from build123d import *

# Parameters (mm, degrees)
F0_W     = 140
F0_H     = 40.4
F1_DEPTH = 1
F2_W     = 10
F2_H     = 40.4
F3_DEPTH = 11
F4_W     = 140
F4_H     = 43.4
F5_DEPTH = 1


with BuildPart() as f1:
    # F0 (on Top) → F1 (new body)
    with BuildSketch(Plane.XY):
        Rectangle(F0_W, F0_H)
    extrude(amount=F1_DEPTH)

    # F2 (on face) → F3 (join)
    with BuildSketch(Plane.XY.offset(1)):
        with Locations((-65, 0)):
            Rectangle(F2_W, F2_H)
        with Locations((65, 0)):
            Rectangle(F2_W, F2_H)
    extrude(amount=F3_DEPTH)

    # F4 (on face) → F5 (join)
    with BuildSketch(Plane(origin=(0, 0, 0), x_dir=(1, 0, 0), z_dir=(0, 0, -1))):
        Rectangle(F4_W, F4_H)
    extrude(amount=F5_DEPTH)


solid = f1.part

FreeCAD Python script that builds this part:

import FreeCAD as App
import Part
import Sketcher
Q = App.Units.Quantity


def add_polygon(sketch, points):
    """Adds a closed chain of lines whose ends are joined by coincident constraints."""
    first, n = sketch.GeometryCount, len(points)
    for a, b in zip(points, points[1:] + points[:1]):
        sketch.addGeometry(Part.LineSegment(App.Vector(*a, 0), App.Vector(*b, 0)), False)
    for i in range(n):
        sketch.addConstraint(Sketcher.Constraint("Coincident", first + i, 2, first + (i + 1) % n, 1))

doc = App.newDocument("Part")
params = doc.addObject("Spreadsheet::Sheet", "Params")
for row, (alias, value) in enumerate([
    ("sketch1_width", "140 mm"),
    ("sketch1_height", "40.4 mm"),
    ("pad1_length", "1 mm"),
    ("sketch2_width", "10 mm"),
    ("sketch2_height", "40.4 mm"),
    ("pad2_length", "11 mm"),
    ("sketch3_width", "140 mm"),
    ("sketch3_height", "43.4 mm"),
    ("pad3_length", "1 mm"),
], start=1):
    params.set(f"A{row}", alias)
    params.set(f"B{row}", "=" + value)
    params.setAlias(f"B{row}", alias)

body = doc.addObject("PartDesign::Body", "Body")

sketch1 = body.newObject("Sketcher::SketchObject", "Sketch")
sketch1.AttachmentSupport = (doc.getObject("XY_Plane"), [""])
sketch1.MapMode = "FlatFace"
add_polygon(sketch1, [(-70, 20), (-70, -20), (70, -20), (70, 20)])
sketch1.addConstraint(Sketcher.Constraint("Vertical", 0))
sketch1.addConstraint(Sketcher.Constraint("Horizontal", 1))
sketch1.addConstraint(Sketcher.Constraint("Vertical", 2))
sketch1.addConstraint(Sketcher.Constraint("Horizontal", 3))
sketch1.addConstraint(Sketcher.Constraint("Symmetric", 0, 2, 2, 2, -1, 1))
sketch1.addConstraint(Sketcher.Constraint("DistanceX", 1, 1, 1, 2, Q("140 mm")))
sketch1.addConstraint(Sketcher.Constraint("DistanceY", 0, 2, 0, 1, Q("40.4 mm")))
sketch1.setExpression("Constraints[9]", "Params.sketch1_width")
sketch1.setExpression("Constraints[10]", "Params.sketch1_height")
pad1 = body.newObject("PartDesign::Pad", "Pad")
pad1.Profile = sketch1
pad1.setExpression("Length", "Params.pad1_length")

sketch2 = body.newObject("Sketcher::SketchObject", "Sketch001")
sketch2.AttachmentSupport = (doc.getObject("XY_Plane"), [""])
sketch2.MapMode = "FlatFace"
sketch2.AttachmentOffset = App.Placement(App.Vector(0, 0, 1), App.Rotation())
add_polygon(sketch2, [(-70, 20), (-70, -20), (-60, -20), (-60, 20)])
add_polygon(sketch2, [(60, 20), (60, -20), (70, -20), (70, 20)])
sketch2.addConstraint(Sketcher.Constraint("Vertical", 0))
sketch2.addConstraint(Sketcher.Constraint("Horizontal", 1))
sketch2.addConstraint(Sketcher.Constraint("Vertical", 2))
sketch2.addConstraint(Sketcher.Constraint("Horizontal", 3))
sketch2.addConstraint(Sketcher.Constraint("Vertical", 4))
sketch2.addConstraint(Sketcher.Constraint("Horizontal", 5))
sketch2.addConstraint(Sketcher.Constraint("Vertical", 6))
sketch2.addConstraint(Sketcher.Constraint("Horizontal", 7))
sketch2.addConstraint(Sketcher.Constraint("Symmetric", 2, 2, 4, 2, -1, 1))
sketch2.addConstraint(Sketcher.Constraint("Symmetric", 0, 2, 6, 2, -1, 1))
sketch2.addConstraint(Sketcher.Constraint("Horizontal", 1, 2, 4, 2))
sketch2.addConstraint(Sketcher.Constraint("DistanceX", 1, 1, 1, 2, Q("10 mm")))
sketch2.addConstraint(Sketcher.Constraint("DistanceY", 0, 2, 0, 1, Q("40.4 mm")))
sketch2.addConstraint(Sketcher.Constraint("DistanceX", 0, 2, -1, 1, Q("70 mm")))
sketch2.setExpression("Constraints[19]", "Params.sketch2_width")
sketch2.setExpression("Constraints[20]", "Params.sketch2_height")
pad2 = body.newObject("PartDesign::Pad", "Pad001")
pad2.Profile = sketch2
pad2.setExpression("Length", "Params.pad2_length")

sketch3 = body.newObject("Sketcher::SketchObject", "Sketch002")
sketch3.AttachmentSupport = (doc.getObject("XY_Plane"), [""])
sketch3.MapMode = "FlatFace"
add_polygon(sketch3, [(-70, -22), (-70, 22), (70, 22), (70, -22)])
sketch3.addConstraint(Sketcher.Constraint("Vertical", 0))
sketch3.addConstraint(Sketcher.Constraint("Horizontal", 1))
sketch3.addConstraint(Sketcher.Constraint("Vertical", 2))
sketch3.addConstraint(Sketcher.Constraint("Horizontal", 3))
sketch3.addConstraint(Sketcher.Constraint("Symmetric", 0, 2, 2, 2, -1, 1))
sketch3.addConstraint(Sketcher.Constraint("DistanceX", 1, 1, 1, 2, Q("140 mm")))
sketch3.addConstraint(Sketcher.Constraint("DistanceY", 0, 1, 0, 2, Q("43.4 mm")))
sketch3.setExpression("Constraints[9]", "Params.sketch3_width")
sketch3.setExpression("Constraints[10]", "Params.sketch3_height")
pad3 = body.newObject("PartDesign::Pad", "Pad002")
pad3.Profile = sketch3
pad3.setExpression("Length", "Params.pad3_length")
pad3.Reversed = True

doc.recompute()
